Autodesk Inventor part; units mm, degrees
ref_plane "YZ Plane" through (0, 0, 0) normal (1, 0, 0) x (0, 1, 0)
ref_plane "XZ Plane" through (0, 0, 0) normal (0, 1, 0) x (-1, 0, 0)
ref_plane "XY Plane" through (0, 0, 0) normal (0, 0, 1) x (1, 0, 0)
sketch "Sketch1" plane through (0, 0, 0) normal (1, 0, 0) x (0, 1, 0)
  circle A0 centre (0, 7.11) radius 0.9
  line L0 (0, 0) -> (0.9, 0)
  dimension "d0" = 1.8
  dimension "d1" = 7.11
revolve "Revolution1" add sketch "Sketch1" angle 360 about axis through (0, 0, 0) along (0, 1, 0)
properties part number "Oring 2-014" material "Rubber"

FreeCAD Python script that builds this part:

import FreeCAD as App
import Part
import Sketcher
from FreeCAD import Vector
Q = App.Units.Quantity

doc = App.newDocument("Part")
params = doc.addObject("Spreadsheet::Sheet", "Params")
for row, (alias, value) in enumerate([
    ("sketch1_diameter", "1.8 mm"),
    ("revolution_angle", "360 deg"),
], start=1):
    params.set(f"A{row}", alias)
    params.set(f"B{row}", "=" + value)
    params.setAlias(f"B{row}", alias)

body = doc.addObject("PartDesign::Body", "Body")

# Sketch on YZ plane
sketch1 = body.newObject("Sketcher::SketchObject", "Sketch")
sketch1.AttachmentSupport = (doc.getObject("YZ_Plane"), [""])
sketch1.MapMode = "FlatFace"
sketch1.addGeometry(Part.Circle(Vector(0, 7.11, 0), Vector(0, 0, 1), 0.9), False)
sketch1.addConstraint(Sketcher.Constraint("PointOnObject", 0, 3, -2))
sketch1.addConstraint(Sketcher.Constraint("Diameter", 0, Q("1.8 mm")))
sketch1.addConstraint(Sketcher.Constraint("DistanceY", -1, 1, 0, 3, Q("7.11 mm")))
sketch1.setExpression("Constraints[1]", "Params.sketch1_diameter")
revolution = body.newObject("PartDesign::Revolution", "Revolution")
revolution.Profile = sketch1
revolution.ReferenceAxis = (sketch1, ["H_Axis"])
revolution.setExpression("Angle", "Params.revolution_angle")

doc.recompute()
